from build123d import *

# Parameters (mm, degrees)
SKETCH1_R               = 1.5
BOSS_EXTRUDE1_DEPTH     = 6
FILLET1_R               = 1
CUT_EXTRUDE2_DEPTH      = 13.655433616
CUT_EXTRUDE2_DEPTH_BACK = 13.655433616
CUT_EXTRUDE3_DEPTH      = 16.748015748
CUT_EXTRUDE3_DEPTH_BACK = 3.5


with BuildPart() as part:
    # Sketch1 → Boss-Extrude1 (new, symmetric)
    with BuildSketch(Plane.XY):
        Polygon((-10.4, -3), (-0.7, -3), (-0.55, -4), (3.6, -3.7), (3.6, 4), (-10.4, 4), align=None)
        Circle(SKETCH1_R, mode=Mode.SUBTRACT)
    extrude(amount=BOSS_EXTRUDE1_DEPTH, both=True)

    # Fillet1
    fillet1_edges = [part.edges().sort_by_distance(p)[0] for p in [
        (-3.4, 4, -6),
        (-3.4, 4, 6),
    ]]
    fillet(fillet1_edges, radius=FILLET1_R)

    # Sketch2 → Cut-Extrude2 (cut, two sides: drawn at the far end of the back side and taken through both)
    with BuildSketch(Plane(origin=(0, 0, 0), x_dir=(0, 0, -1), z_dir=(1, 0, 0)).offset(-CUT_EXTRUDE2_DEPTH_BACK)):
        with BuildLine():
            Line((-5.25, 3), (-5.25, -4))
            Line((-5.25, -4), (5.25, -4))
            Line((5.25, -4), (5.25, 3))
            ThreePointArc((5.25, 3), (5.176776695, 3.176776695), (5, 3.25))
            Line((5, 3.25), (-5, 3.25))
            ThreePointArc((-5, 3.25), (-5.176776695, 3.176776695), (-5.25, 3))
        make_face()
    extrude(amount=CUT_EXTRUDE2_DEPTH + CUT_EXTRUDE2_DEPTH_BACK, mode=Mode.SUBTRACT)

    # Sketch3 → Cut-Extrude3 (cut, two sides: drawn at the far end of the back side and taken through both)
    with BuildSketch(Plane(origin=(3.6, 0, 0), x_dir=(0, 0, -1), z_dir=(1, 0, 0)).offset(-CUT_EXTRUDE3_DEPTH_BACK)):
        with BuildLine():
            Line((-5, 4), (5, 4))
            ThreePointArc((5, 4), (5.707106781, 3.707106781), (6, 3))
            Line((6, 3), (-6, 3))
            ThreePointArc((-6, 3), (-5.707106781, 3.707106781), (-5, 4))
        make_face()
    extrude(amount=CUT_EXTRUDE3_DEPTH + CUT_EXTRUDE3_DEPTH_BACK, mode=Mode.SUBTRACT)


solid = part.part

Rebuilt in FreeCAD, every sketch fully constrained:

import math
import FreeCAD as App
import Part
import Sketcher
from FreeCAD import Vector
Q = App.Units.Quantity


def edges_at(feature, points):
    """Names of the edges that pass closest to the given points."""
    edges = feature.Shape.Edges
    near = lambda p: min(range(len(edges)), key=lambda i: edges[i].distToShape(Part.Vertex(*p))[0])
    return sorted({f"Edge{near(p) + 1}" for p in points})


def add_polygon(sketch, points):
    """Adds a closed chain of lines whose ends are joined by coincident constraints."""
    first, n = sketch.GeometryCount, len(points)
    for a, b in zip(points, points[1:] + points[:1]):
        sketch.addGeometry(Part.LineSegment(App.Vector(*a, 0), App.Vector(*b, 0)), False)
    for i in range(n):
        sketch.addConstraint(Sketcher.Constraint("Coincident", first + i, 2, first + (i + 1) % n, 1))

doc = App.newDocument("Part")
body = doc.addObject("PartDesign::Body", "Body")

# Sketch on XY plane
sketch1 = body.newObject("Sketcher::SketchObject", "Sketch")
sketch1.AttachmentSupport = (doc.getObject("XY_Plane"), [""])
sketch1.MapMode = "FlatFace"
add_polygon(sketch1, [(-10.4, -3), (-0.7, -3), (-0.6, -4), (3.6, -3.7), (3.6, 4), (-10.4, 4)])  # lines 0-5
sketch1.addGeometry(Part.Circle(Vector(0, 0, 0), Vector(0, 0, 1), 1.5), False)  # 6
sketch1.addConstraint(Sketcher.Constraint("Horizontal", 0))
sketch1.addConstraint(Sketcher.Constraint("Vertical", 3))
sketch1.addConstraint(Sketcher.Constraint("Horizontal", 4))
sketch1.addConstraint(Sketcher.Constraint("Vertical", 5))
sketch1.addConstraint(Sketcher.Constraint("Coincident", 6, 3, -1, 1))
sketch1.addConstraint(Sketcher.Constraint("Diameter", 6, Q("3 mm")))
sketch1.addConstraint(Sketcher.Constraint("DistanceX", 4, 2, 4, 1, Q("14 mm")))
sketch1.addConstraint(Sketcher.Constraint("DistanceY", 5, 2, 5, 1, Q("7 mm")))
sketch1.addConstraint(Sketcher.Constraint("DistanceX", 0, 1, 0, 2, Q("9.7 mm")))
sketch1.addConstraint(Sketcher.Constraint("DistanceY", 3, 1, 3, 2, Q("7.7 mm")))
sketch1.addConstraint(Sketcher.Constraint("DistanceY", 0, 2, -1, 1, Q("3 mm")))
sketch1.addConstraint(Sketcher.Constraint("DistanceY", 1, 2, -1, 1, Q("4 mm")))
sketch1.addConstraint(Sketcher.Constraint("DistanceX", 0, 2, -1, 1, Q("0.7 mm")))
sketch1.addConstraint(Sketcher.Constraint("DistanceX", 1, 2, -1, 1, Q("0.55 mm")))
pad1 = body.newObject("PartDesign::Pad", "Pad")
pad1.Profile = sketch1
pad1.Length = 12
pad1.Midplane = True
doc.recompute()

fillet = body.newObject("PartDesign::Fillet", "Fillet")
fillet.Base = (pad1, edges_at(pad1, [(-3.4, 4, -6), (-3.4, 4, 6)]))
fillet.Radius = 1

# Sketch on YZ plane
sketch2 = body.newObject("Sketcher::SketchObject", "Sketch001")
sketch2.AttachmentSupport = (doc.getObject("YZ_Plane"), [""])
sketch2.MapMode = "FlatFace"
sketch2.addGeometry(Part.LineSegment(Vector(3, 5.25, 0), Vector(-4, 5.25, 0)), False)
sketch2.addGeometry(Part.LineSegment(Vector(-4, 5.25, 0), Vector(-4, -5.25, 0)), False)
sketch2.addGeometry(Part.LineSegment(Vector(-4, -5.25, 0), Vector(3, -5.25, 0)), False)
sketch2.addGeometry(Part.ArcOfCircle(Part.Circle(Vector(3, -5, 0), Vector(0, 0, 1), 0.25), math.radians(-90), math.radians(0)), False)
sketch2.addGeometry(Part.LineSegment(Vector(3.25, -5, 0), Vector(3.25, 5, 0)), False)
sketch2.addGeometry(Part.ArcOfCircle(Part.Circle(Vector(3, 5, 0), Vector(0, 0, 1), 0.25), math.radians(0), math.radians(90)), False)
sketch2.addConstraint(Sketcher.Constraint("Coincident", 0, 2, 1, 1))
sketch2.addConstraint(Sketcher.Constraint("Coincident", 1, 2, 2, 1))
sketch2.addConstraint(Sketcher.Constraint("Tangent", 2, 2, 3, 1))
sketch2.addConstraint(Sketcher.Constraint("Tangent", 3, 2, 4, 1))
sketch2.addConstraint(Sketcher.Constraint("Tangent", 4, 2, 5, 1))
sketch2.addConstraint(Sketcher.Constraint("Tangent", 5, 2, 0, 1))
sketch2.addConstraint(Sketcher.Constraint("Horizontal", 0))
sketch2.addConstraint(Sketcher.Constraint("Vertical", 1))
sketch2.addConstraint(Sketcher.Constraint("Horizontal", 2))
sketch2.addConstraint(Sketcher.Constraint("Vertical", 4))
sketch2.addConstraint(Sketcher.Constraint("Equal", 3, 5))
sketch2.addConstraint(Sketcher.Constraint("DistanceX", 0, 2, 0, 1, Q("7 mm")))
sketch2.addConstraint(Sketcher.Constraint("DistanceY", 4, 1, 4, 2, Q("10 mm")))
sketch2.addConstraint(Sketcher.Constraint("Radius", 3, Q("0.25 mm")))
sketch2.addConstraint(Sketcher.Constraint("DistanceX", -1, 1, 3, 3, Q("3 mm")))
sketch2.addConstraint(Sketcher.Constraint("DistanceY", 3, 3, -1, 1, Q("5 mm")))
pocket1 = body.newObject("PartDesign::Pocket", "Pocket")
pocket1.Profile = sketch2
pocket1.Type = "ThroughAll"
pocket1.Midplane = True

# Sketch on YZ plane
sketch3 = body.newObject("Sketcher::SketchObject", "Sketch002")
sketch3.AttachmentSupport = (doc.getObject("YZ_Plane"), [""])
sketch3.MapMode = "FlatFace"
sketch3.AttachmentOffset = App.Placement(Vector(0, 0, 3.6), App.Rotation())
sketch3.addGeometry(Part.LineSegment(Vector(4, -5, 0), Vector(4, 5, 0)), False)
sketch3.addGeometry(Part.ArcOfCircle(Part.Circle(Vector(3, 5, 0), Vector(0, 0, 1), 1), math.radians(0), math.radians(90)), False)
sketch3.addGeometry(Part.LineSegment(Vector(3, 6, 0), Vector(3, -6, 0)), False)
sketch3.addGeometry(Part.ArcOfCircle(Part.Circle(Vector(3, -5, 0), Vector(0, 0, 1), 1), math.radians(-90), math.radians(0)), False)
sketch3.addConstraint(Sketcher.Constraint("Tangent", 0, 2, 1, 1))
sketch3.addConstraint(Sketcher.Constraint("Coincident", 1, 2, 2, 1))
sketch3.addConstraint(Sketcher.Constraint("Coincident", 2, 2, 3, 1))
sketch3.addConstraint(Sketcher.Constraint("Tangent", 3, 2, 0, 1))
sketch3.addConstraint(Sketcher.Constraint("Vertical", 0))
sketch3.addConstraint(Sketcher.Constraint("Vertical", 2))
sketch3.addConstraint(Sketcher.Constraint("Equal", 1, 3))
sketch3.addConstraint(Sketcher.Constraint("Vertical", 3, 3, 1, 2))
sketch3.addConstraint(Sketcher.Constraint("Radius", 1, Q("1 mm")))
sketch3.addConstraint(Sketcher.Constraint("DistanceY", 0, 1, 0, 2, Q("10 mm")))
sketch3.addConstraint(Sketcher.Constraint("DistanceX", -1, 1, 1, 3, Q("3 mm")))
sketch3.addConstraint(Sketcher.Constraint("DistanceY", -1, 1, 1, 3, Q("5 mm")))
pocket2 = body.newObject("PartDesign::Pocket", "Pocket001")
pocket2.Profile = sketch3
pocket2.Type = "TwoLengths"
pocket2.Length = 16.748016
pocket2.Length2 = 3.5
pocket2.Reversed = True

doc.recompute()
